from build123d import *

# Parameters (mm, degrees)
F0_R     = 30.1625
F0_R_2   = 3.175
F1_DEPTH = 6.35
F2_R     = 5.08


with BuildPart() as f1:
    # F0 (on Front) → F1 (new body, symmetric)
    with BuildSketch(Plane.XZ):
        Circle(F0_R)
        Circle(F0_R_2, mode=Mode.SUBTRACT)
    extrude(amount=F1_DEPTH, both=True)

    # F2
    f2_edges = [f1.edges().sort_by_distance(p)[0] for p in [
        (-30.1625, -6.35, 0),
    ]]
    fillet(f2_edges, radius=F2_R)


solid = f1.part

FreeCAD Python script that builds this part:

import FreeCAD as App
import Part
import Sketcher
Q = App.Units.Quantity


def edges_at(feature, points):
    """Names of the edges that pass closest to the given points."""
    edges = feature.Shape.Edges
    near = lambda p: min(range(len(edges)), key=lambda i: edges[i].distToShape(Part.Vertex(*p))[0])
    return sorted({f"Edge{near(p) + 1}" for p in points})

doc = App.newDocument("Part")
params = doc.addObject("Spreadsheet::Sheet", "Params")
for row, (alias, value) in enumerate([
    ("sketch1_diameter", "0.25 in"),
    ("sketch1_diameter2", "2.375 in"),
    ("pad1_length", "0.5 in"),
    ("fillet_radius", "0.2 in"),
], start=1):
    params.set(f"A{row}", alias)
    params.set(f"B{row}", "=" + value)
    params.setAlias(f"B{row}", alias)

body = doc.addObject("PartDesign::Body", "Body")

# Sketch on XZ plane
sketch1 = body.newObject("Sketcher::SketchObject", "Sketch")
sketch1.AttachmentSupport = (doc.getObject("XZ_Plane"), [""])
sketch1.MapMode = "FlatFace"
sketch1.addGeometry([
    Part.Circle(App.Vector(0, 0, 0), App.Vector(0, 0, 1), 30.2),
    Part.Circle(App.Vector(0, 0, 0), App.Vector(0, 0, 1), 3.2),
], False)
sketch1.addConstraint([
    Sketcher.Constraint("Coincident", 0, 3, -1, 1),
    Sketcher.Constraint("Coincident", 1, 3, -1, 1),
    Sketcher.Constraint("Diameter", 1, Q("0.25 in")),
    Sketcher.Constraint("Diameter", 0, Q("2.375 in")),
])
sketch1.setExpression("Constraints[2]", "Params.sketch1_diameter")
sketch1.setExpression("Constraints[3]", "Params.sketch1_diameter2")
pad1 = body.newObject("PartDesign::Pad", "Pad")
pad1.Profile = sketch1
pad1.setExpression("Length", "Params.pad1_length")
pad1.Midplane = True
doc.recompute()

fillet = body.newObject("PartDesign::Fillet", "Fillet")
fillet.Base = (pad1, edges_at(pad1, [(-30.163, -6.35, 0)]))
fillet.setExpression("Radius", "Params.fillet_radius")

doc.recompute()
